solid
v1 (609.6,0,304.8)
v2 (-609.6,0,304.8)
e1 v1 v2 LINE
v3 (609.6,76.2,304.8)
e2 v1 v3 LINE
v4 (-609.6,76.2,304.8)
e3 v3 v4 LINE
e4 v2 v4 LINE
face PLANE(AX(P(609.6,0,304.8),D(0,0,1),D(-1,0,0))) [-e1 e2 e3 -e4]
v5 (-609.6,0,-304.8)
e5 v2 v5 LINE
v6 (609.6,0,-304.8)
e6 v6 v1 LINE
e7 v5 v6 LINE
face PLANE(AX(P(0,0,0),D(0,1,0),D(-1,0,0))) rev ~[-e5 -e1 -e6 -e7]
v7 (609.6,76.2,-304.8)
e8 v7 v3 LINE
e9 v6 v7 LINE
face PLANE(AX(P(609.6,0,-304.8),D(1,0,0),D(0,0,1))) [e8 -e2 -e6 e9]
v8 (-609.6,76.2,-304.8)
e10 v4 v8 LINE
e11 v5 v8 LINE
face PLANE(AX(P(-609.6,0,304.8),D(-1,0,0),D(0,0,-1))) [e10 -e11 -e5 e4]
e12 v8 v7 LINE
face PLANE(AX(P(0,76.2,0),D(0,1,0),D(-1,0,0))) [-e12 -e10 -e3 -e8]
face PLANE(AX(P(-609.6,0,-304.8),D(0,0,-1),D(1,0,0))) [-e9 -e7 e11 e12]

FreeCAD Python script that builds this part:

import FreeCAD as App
import Part
import Sketcher

V = App.Vector
Q = App.Units.Quantity

doc = App.newDocument("Part")
params = doc.addObject("Spreadsheet::Sheet", "Params")
for row, (alias, value) in enumerate([
    ("sketch1_width", "48 in"),
    ("sketch1_height", "24 in"),
    ("pad1_length", "3 in"),
], start=1):
    params.set(f"A{row}", alias)
    params.set(f"B{row}", "=" + value)
    params.setAlias(f"B{row}", alias)

body = doc.addObject("PartDesign::Body", "Body")

# Sketch on XZ plane
sketch1 = body.newObject("Sketcher::SketchObject", "Sketch")
sketch1.AttachmentSupport = (doc.getObject("XZ_Plane"), [""])
sketch1.MapMode = "FlatFace"
sketch1.addGeometry(Part.LineSegment(V(610, -305, 0), V(-610, -305, 0)), False)
sketch1.addGeometry(Part.LineSegment(V(-610, -305, 0), V(-610, 305, 0)), False)
sketch1.addGeometry(Part.LineSegment(V(-610, 305, 0), V(610, 305, 0)), False)
sketch1.addGeometry(Part.LineSegment(V(610, 305, 0), V(610, -305, 0)), False)
sketch1.addConstraint(Sketcher.Constraint("Coincident", 0, 2, 1, 1))
sketch1.addConstraint(Sketcher.Constraint("Coincident", 1, 2, 2, 1))
sketch1.addConstraint(Sketcher.Constraint("Coincident", 2, 2, 3, 1))
sketch1.addConstraint(Sketcher.Constraint("Coincident", 3, 2, 0, 1))
sketch1.addConstraint(Sketcher.Constraint("Horizontal", 0))
sketch1.addConstraint(Sketcher.Constraint("Vertical", 1))
sketch1.addConstraint(Sketcher.Constraint("Horizontal", 2))
sketch1.addConstraint(Sketcher.Constraint("Vertical", 3))
sketch1.addConstraint(Sketcher.Constraint("Symmetric", 0, 2, 2, 2, -1, 1))
sketch1.addConstraint(Sketcher.Constraint("DistanceX", 0, 2, 0, 1, Q("48 in")))
sketch1.addConstraint(Sketcher.Constraint("DistanceY", 1, 1, 1, 2, Q("24 in")))
sketch1.setExpression("Constraints[9]", "Params.sketch1_width")
sketch1.setExpression("Constraints[10]", "Params.sketch1_height")
pad1 = body.newObject("PartDesign::Pad", "Pad")
pad1.Profile = sketch1
pad1.setExpression("Length", "Params.pad1_length")
pad1.Reversed = True

doc.recompute()
